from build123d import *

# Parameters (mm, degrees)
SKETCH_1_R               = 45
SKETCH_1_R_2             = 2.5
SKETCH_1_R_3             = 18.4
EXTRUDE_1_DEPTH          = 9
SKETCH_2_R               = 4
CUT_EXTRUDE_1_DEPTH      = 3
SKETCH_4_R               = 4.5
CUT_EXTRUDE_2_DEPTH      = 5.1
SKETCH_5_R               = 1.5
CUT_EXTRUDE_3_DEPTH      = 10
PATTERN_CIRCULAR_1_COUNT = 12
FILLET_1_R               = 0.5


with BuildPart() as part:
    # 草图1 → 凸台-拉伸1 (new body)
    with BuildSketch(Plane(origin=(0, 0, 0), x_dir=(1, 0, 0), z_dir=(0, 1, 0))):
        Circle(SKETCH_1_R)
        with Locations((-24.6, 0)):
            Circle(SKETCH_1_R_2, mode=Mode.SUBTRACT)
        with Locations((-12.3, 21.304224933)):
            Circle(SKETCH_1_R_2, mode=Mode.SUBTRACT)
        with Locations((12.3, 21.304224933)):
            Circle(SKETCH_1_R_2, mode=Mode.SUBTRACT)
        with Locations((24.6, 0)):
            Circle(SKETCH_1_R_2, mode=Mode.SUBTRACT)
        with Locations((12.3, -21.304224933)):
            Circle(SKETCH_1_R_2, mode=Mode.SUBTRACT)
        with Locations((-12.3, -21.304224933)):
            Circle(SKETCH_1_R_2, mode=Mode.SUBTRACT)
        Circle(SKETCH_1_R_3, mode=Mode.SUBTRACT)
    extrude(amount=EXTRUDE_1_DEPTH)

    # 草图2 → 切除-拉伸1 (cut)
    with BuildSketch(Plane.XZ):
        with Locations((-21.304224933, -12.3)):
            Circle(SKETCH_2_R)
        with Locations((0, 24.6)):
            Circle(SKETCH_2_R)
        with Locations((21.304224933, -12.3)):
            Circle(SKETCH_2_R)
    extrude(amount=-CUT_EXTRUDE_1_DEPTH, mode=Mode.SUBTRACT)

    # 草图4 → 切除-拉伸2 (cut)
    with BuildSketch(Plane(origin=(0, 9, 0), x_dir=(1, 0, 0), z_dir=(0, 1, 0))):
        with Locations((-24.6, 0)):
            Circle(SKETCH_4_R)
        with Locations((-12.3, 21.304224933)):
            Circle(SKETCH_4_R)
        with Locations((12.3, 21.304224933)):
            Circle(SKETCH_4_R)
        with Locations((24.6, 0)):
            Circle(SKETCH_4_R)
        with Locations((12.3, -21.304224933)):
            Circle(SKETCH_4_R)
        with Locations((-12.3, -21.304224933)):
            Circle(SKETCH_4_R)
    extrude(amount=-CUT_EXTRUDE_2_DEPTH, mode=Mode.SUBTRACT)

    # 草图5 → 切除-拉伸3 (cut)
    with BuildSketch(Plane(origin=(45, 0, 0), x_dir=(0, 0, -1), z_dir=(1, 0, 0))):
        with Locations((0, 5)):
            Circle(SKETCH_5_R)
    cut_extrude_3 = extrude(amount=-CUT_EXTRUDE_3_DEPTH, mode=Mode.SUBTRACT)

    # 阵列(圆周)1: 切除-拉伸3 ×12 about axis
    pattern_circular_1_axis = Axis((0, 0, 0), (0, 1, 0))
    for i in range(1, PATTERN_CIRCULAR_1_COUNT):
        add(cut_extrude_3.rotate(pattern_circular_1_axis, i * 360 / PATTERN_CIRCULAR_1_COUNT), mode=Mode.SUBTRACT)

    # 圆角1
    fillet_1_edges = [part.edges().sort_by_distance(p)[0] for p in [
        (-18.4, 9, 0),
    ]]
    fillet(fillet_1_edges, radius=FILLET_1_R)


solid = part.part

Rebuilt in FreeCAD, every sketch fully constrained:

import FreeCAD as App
import Part
import Sketcher

V = App.Vector


def edges_at(feature, points):
    """Names of the edges that pass closest to the given points."""
    edges = feature.Shape.Edges
    near = lambda p: min(range(len(edges)), key=lambda i: edges[i].distToShape(Part.Vertex(*p))[0])
    return sorted({f"Edge{near(p) + 1}" for p in points})

doc = App.newDocument("Part")
body = doc.addObject("PartDesign::Body", "Body")

sketch1 = doc.addObject("Sketcher::SketchObject", "Sketch")
body.addObject(sketch1)
sketch1.AttachmentSupport = (doc.XZ_Plane, [""])
sketch1.MapMode = "FlatFace"
sketch1.addGeometry(Part.Circle(V(0, 0, 0), V(0, 0, 1), 45), False)
sketch1.addGeometry(Part.Circle(V(-12.3, 21.3, 0), V(0, 0, 1), 2.5), False)
sketch1.addGeometry(Part.Circle(V(12.3, 21.3, 0), V(0, 0, 1), 2.5), False)
sketch1.addGeometry(Part.Circle(V(-24.6, 0, 0), V(0, 0, 1), 2.5), False)
sketch1.addGeometry(Part.Circle(V(-12.3, -21.3, 0), V(0, 0, 1), 2.5), False)
sketch1.addGeometry(Part.Circle(V(0, 0, 0), V(0, 0, 1), 18.4), False)
sketch1.addGeometry(Part.Circle(V(24.6, 0, 0), V(0, 0, 1), 2.5), False)
sketch1.addGeometry(Part.Circle(V(12.3, -21.3, 0), V(0, 0, 1), 2.5), False)
sketch1.addConstraint(Sketcher.Constraint("Coincident", 0, 3, -1, 1))
sketch1.addConstraint(Sketcher.Constraint("Coincident", 5, 3, -1, 1))
sketch1.addConstraint(Sketcher.Constraint("Equal", 1, 2))
sketch1.addConstraint(Sketcher.Constraint("Equal", 2, 3))
sketch1.addConstraint(Sketcher.Constraint("Equal", 3, 4))
sketch1.addConstraint(Sketcher.Constraint("Equal", 4, 6))
sketch1.addConstraint(Sketcher.Constraint("Equal", 6, 7))
sketch1.addConstraint(Sketcher.Constraint("Symmetric", 2, 3, 4, 3, -1, 1))
sketch1.addConstraint(Sketcher.Constraint("Symmetric", 3, 3, 6, 3, -1, 1))
sketch1.addConstraint(Sketcher.Constraint("Symmetric", 1, 3, 7, 3, -1, 1))
sketch1.addConstraint(Sketcher.Constraint("Symmetric", 1, 3, 2, 3, -2))
sketch1.addConstraint(Sketcher.Constraint("PointOnObject", 3, 3, -1))
sketch1.addConstraint(Sketcher.Constraint("Diameter", 0, 90.0))
sketch1.addConstraint(Sketcher.Constraint("Diameter", 1, 5.0))
sketch1.addConstraint(Sketcher.Constraint("Diameter", 5, 36.8))
sketch1.addConstraint(Sketcher.Constraint("DistanceX", 1, 3, -1, 1, 12.3))
sketch1.addConstraint(Sketcher.Constraint("DistanceX", 3, 3, -1, 1, 24.6))
sketch1.addConstraint(Sketcher.Constraint("DistanceY", 4, 3, 1, 3, 42.60845))
pad1 = doc.addObject("PartDesign::Pad", "Pad")
body.addObject(pad1)
pad1.Profile = sketch1
pad1.Length = 9
pad1.Reversed = True

sketch2 = doc.addObject("Sketcher::SketchObject", "Sketch001")
body.addObject(sketch2)
sketch2.AttachmentSupport = (doc.XZ_Plane, [""])
sketch2.MapMode = "FlatFace"
sketch2.addGeometry(Part.Circle(V(-21.3, -12.3, 0), V(0, 0, 1), 4), False)
sketch2.addGeometry(Part.Circle(V(0, 24.6, 0), V(0, 0, 1), 4), False)
sketch2.addGeometry(Part.Circle(V(21.3, -12.3, 0), V(0, 0, 1), 4), False)
sketch2.addConstraint(Sketcher.Constraint("Equal", 0, 1))
sketch2.addConstraint(Sketcher.Constraint("Equal", 1, 2))
sketch2.addConstraint(Sketcher.Constraint("Symmetric", 0, 3, 2, 3, -2))
sketch2.addConstraint(Sketcher.Constraint("PointOnObject", 1, 3, -2))
sketch2.addConstraint(Sketcher.Constraint("Diameter", 0, 8.0))
sketch2.addConstraint(Sketcher.Constraint("DistanceY", 0, 3, -1, 1, 12.3))
sketch2.addConstraint(Sketcher.Constraint("DistanceY", -1, 1, 1, 3, 24.6))
sketch2.addConstraint(Sketcher.Constraint("DistanceX", 0, 3, 2, 3, 42.60845))
pocket1 = doc.addObject("PartDesign::Pocket", "Pocket")
body.addObject(pocket1)
pocket1.Profile = sketch2
pocket1.Length = 3

sketch3 = doc.addObject("Sketcher::SketchObject", "Sketch002")
body.addObject(sketch3)
sketch3.AttachmentSupport = (doc.XZ_Plane, [""])
sketch3.MapMode = "FlatFace"
sketch3.AttachmentOffset = App.Placement(V(0, 0, -9), App.Rotation())
sketch3.addGeometry(Part.Circle(V(-24.6, 0, 0), V(0, 0, 1), 4.5), False)
sketch3.addGeometry(Part.Circle(V(-12.3, -21.3, 0), V(0, 0, 1), 4.5), False)
sketch3.addGeometry(Part.Circle(V(12.3, -21.3, 0), V(0, 0, 1), 4.5), False)
sketch3.addGeometry(Part.Circle(V(24.6, 0, 0), V(0, 0, 1), 4.5), False)
sketch3.addGeometry(Part.Circle(V(12.3, 21.3, 0), V(0, 0, 1), 4.5), False)
sketch3.addGeometry(Part.Circle(V(-12.3, 21.3, 0), V(0, 0, 1), 4.5), False)
sketch3.addConstraint(Sketcher.Constraint("Equal", 0, 1))
sketch3.addConstraint(Sketcher.Constraint("Equal", 1, 2))
sketch3.addConstraint(Sketcher.Constraint("Equal", 2, 3))
sketch3.addConstraint(Sketcher.Constraint("Equal", 3, 4))
sketch3.addConstraint(Sketcher.Constraint("Equal", 4, 5))
sketch3.addConstraint(Sketcher.Constraint("Symmetric", 0, 3, 3, 3, -1, 1))
sketch3.addConstraint(Sketcher.Constraint("Symmetric", 1, 3, 4, 3, -1, 1))
sketch3.addConstraint(Sketcher.Constraint("Symmetric", 2, 3, 5, 3, -1, 1))
sketch3.addConstraint(Sketcher.Constraint("Symmetric", 1, 3, 2, 3, -2))
sketch3.addConstraint(Sketcher.Constraint("PointOnObject", 0, 3, -1))
sketch3.addConstraint(Sketcher.Constraint("Diameter", 0, 9.0))
sketch3.addConstraint(Sketcher.Constraint("DistanceX", 0, 3, -1, 1, 24.6))
sketch3.addConstraint(Sketcher.Constraint("DistanceX", 1, 3, -1, 1, 12.3))
sketch3.addConstraint(Sketcher.Constraint("DistanceY", 2, 3, 4, 3, 42.60845))
pocket2 = doc.addObject("PartDesign::Pocket", "Pocket001")
body.addObject(pocket2)
pocket2.Profile = sketch3
pocket2.Length = 5.1
pocket2.Reversed = True

sketch4 = doc.addObject("Sketcher::SketchObject", "Sketch003")
body.addObject(sketch4)
sketch4.AttachmentSupport = (doc.YZ_Plane, [""])
sketch4.MapMode = "FlatFace"
sketch4.AttachmentOffset = App.Placement(V(0, 0, 45), App.Rotation())
sketch4.addGeometry(Part.Circle(V(5, 0, 0), V(0, 0, 1), 1.5), False)
sketch4.addConstraint(Sketcher.Constraint("PointOnObject", 0, 3, -1))
sketch4.addConstraint(Sketcher.Constraint("Diameter", 0, 3.0))
sketch4.addConstraint(Sketcher.Constraint("DistanceX", -1, 1, 0, 3, 5.0))
pocket3 = doc.addObject("PartDesign::Pocket", "Pocket002")
body.addObject(pocket3)
pocket3.Profile = sketch4
pocket3.Length = 10
doc.recompute()

polarpattern = doc.addObject("PartDesign::PolarPattern", "PolarPattern")
body.addObject(polarpattern)
polarpattern.Originals = [pocket3]
polarpattern.Axis = (doc.Y_Axis, [""])
polarpattern.Angle = 360
polarpattern.Occurrences = 12
body.Tip = polarpattern
doc.recompute()

fillet = doc.addObject("PartDesign::Fillet", "Fillet")
body.addObject(fillet)
fillet.Base = (polarpattern, edges_at(polarpattern, [(-18.4, 9, 0)]))
fillet.Radius = 0.5

doc.recompute()
